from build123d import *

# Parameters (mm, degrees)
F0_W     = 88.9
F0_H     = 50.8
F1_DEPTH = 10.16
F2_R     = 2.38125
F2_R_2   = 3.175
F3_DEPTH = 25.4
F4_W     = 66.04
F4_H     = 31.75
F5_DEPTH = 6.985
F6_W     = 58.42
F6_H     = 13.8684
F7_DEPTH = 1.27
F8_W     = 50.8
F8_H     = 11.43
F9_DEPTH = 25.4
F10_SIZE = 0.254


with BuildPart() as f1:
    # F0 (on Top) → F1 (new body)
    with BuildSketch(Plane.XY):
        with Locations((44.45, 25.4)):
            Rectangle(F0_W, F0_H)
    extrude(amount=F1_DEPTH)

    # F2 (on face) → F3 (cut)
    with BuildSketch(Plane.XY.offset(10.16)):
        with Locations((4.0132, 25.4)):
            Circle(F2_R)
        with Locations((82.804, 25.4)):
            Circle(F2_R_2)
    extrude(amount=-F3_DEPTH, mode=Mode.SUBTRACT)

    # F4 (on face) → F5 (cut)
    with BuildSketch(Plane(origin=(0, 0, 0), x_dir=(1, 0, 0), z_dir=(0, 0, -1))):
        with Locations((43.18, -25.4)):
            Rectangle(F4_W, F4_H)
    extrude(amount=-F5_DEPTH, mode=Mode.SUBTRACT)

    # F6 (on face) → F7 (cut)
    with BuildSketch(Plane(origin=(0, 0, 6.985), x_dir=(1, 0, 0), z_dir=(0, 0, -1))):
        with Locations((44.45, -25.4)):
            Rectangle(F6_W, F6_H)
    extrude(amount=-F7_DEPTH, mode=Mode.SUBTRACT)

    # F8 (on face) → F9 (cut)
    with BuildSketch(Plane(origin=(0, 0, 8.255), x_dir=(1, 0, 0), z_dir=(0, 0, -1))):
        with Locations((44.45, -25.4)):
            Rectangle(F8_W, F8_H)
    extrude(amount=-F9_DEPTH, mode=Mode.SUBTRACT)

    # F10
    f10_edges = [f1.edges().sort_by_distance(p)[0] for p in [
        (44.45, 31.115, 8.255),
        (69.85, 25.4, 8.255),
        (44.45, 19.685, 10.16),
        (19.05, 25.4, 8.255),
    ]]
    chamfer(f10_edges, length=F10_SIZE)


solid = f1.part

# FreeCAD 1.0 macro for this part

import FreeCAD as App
import Part
import Sketcher
Q = App.Units.Quantity


def edges_at(feature, points):
    """Names of the edges that pass closest to the given points."""
    edges = feature.Shape.Edges
    near = lambda p: min(range(len(edges)), key=lambda i: edges[i].distToShape(Part.Vertex(*p))[0])
    return sorted({f"Edge{near(p) + 1}" for p in points})

doc = App.newDocument("Part")
body = doc.addObject("PartDesign::Body", "Body")

sketch1 = body.newObject("Sketcher::SketchObject", "Sketch")
sketch1.AttachmentSupport = (doc.getObject("XY_Plane"), [""])
sketch1.MapMode = "FlatFace"
sketch1.addGeometry([
    Part.LineSegment(App.Vector(0, 51, 0), App.Vector(0, 0, 0)),
    Part.LineSegment(App.Vector(0, 0, 0), App.Vector(89, 0, 0)),
    Part.LineSegment(App.Vector(89, 0, 0), App.Vector(89, 51, 0)),
    Part.LineSegment(App.Vector(89, 51, 0), App.Vector(0, 51, 0)),
], False)
sketch1.addConstraint([
    Sketcher.Constraint("Coincident", 0, 2, 1, 1),
    Sketcher.Constraint("Coincident", 1, 2, 2, 1),
    Sketcher.Constraint("Coincident", 2, 2, 3, 1),
    Sketcher.Constraint("Coincident", 3, 2, 0, 1),
    Sketcher.Constraint("Vertical", 0),
    Sketcher.Constraint("Horizontal", 1),
    Sketcher.Constraint("Vertical", 2),
    Sketcher.Constraint("Horizontal", 3),
    Sketcher.Constraint("Coincident", 0, 2, -1, 1),
    Sketcher.Constraint("DistanceY", 0, 2, 0, 1, Q("2 in")),
    Sketcher.Constraint("DistanceX", 1, 1, 1, 2, Q("3.5 in")),
])
pad1 = body.newObject("PartDesign::Pad", "Pad")
pad1.Profile = sketch1
pad1.Length = Q("0.4 in")

sketch2 = body.newObject("Sketcher::SketchObject", "Sketch001")
sketch2.AttachmentSupport = (doc.getObject("XY_Plane"), [""])
sketch2.MapMode = "FlatFace"
sketch2.AttachmentOffset = App.Placement(App.Vector(0, 0, 0.4 * 25.4), App.Rotation())
sketch2.addGeometry([
    Part.Circle(App.Vector(4, 25.4, 0), App.Vector(0, 0, 1), 2.4),
    Part.Circle(App.Vector(82.8, 25.4, 0), App.Vector(0, 0, 1), 3.2),
], False)
sketch2.addConstraint([
    Sketcher.Constraint("Horizontal", 0, 3, 1, 3),
    Sketcher.Constraint("Diameter", 1, Q("0.25 in")),
    Sketcher.Constraint("Diameter", 0, Q("0.1875 in")),
    Sketcher.Constraint("DistanceY", -1, 1, 0, 3, Q("1 in")),
    Sketcher.Constraint("DistanceX", -1, 1, 1, 3, Q("3.26 in")),
    Sketcher.Constraint("DistanceX", -1, 1, 0, 3, Q("0.158 in")),
])
pocket1 = body.newObject("PartDesign::Pocket", "Pocket")
pocket1.Profile = sketch2
pocket1.Length = Q("1 in")

sketch3 = body.newObject("Sketcher::SketchObject", "Sketch002")
sketch3.AttachmentSupport = (doc.getObject("XY_Plane"), [""])
sketch3.MapMode = "FlatFace"
sketch3.addGeometry([
    Part.LineSegment(App.Vector(10, 10, 0), App.Vector(10, 41, 0)),
    Part.LineSegment(App.Vector(10, 41, 0), App.Vector(76, 41, 0)),
    Part.LineSegment(App.Vector(76, 41, 0), App.Vector(76, 10, 0)),
    Part.LineSegment(App.Vector(76, 10, 0), App.Vector(10, 10, 0)),
], False)
sketch3.addConstraint([
    Sketcher.Constraint("Coincident", 0, 2, 1, 1),
    Sketcher.Constraint("Coincident", 1, 2, 2, 1),
    Sketcher.Constraint("Coincident", 2, 2, 3, 1),
    Sketcher.Constraint("Coincident", 3, 2, 0, 1),
    Sketcher.Constraint("Vertical", 0),
    Sketcher.Constraint("Horizontal", 1),
    Sketcher.Constraint("Vertical", 2),
    Sketcher.Constraint("Horizontal", 3),
    Sketcher.Constraint("DistanceX", 1, 1, 1, 2, Q("2.6 in")),
    Sketcher.Constraint("DistanceX", -1, 1, 1, 2, Q("3 in")),
    Sketcher.Constraint("DistanceY", 0, 1, 0, 2, Q("1.25 in")),
    Sketcher.Constraint("DistanceY", -1, 1, 0, 2, Q("1.625 in")),
])
pocket2 = body.newObject("PartDesign::Pocket", "Pocket001")
pocket2.Profile = sketch3
pocket2.Length = Q("0.275 in")
pocket2.Reversed = True

sketch4 = body.newObject("Sketcher::SketchObject", "Sketch003")
sketch4.AttachmentSupport = (doc.getObject("XY_Plane"), [""])
sketch4.MapMode = "FlatFace"
sketch4.AttachmentOffset = App.Placement(App.Vector(0, 0, 0.275 * 25.4), App.Rotation())
sketch4.addGeometry([
    Part.LineSegment(App.Vector(15, 18, 0), App.Vector(15, 32, 0)),
    Part.LineSegment(App.Vector(15, 32, 0), App.Vector(74, 32, 0)),
    Part.LineSegment(App.Vector(74, 32, 0), App.Vector(74, 18, 0)),
    Part.LineSegment(App.Vector(74, 18, 0), App.Vector(15, 18, 0)),
], False)
sketch4.addConstraint([
    Sketcher.Constraint("Coincident", 0, 2, 1, 1),
    Sketcher.Constraint("Coincident", 1, 2, 2, 1),
    Sketcher.Constraint("Coincident", 2, 2, 3, 1),
    Sketcher.Constraint("Coincident", 3, 2, 0, 1),
    Sketcher.Constraint("Vertical", 0),
    Sketcher.Constraint("Horizontal", 1),
    Sketcher.Constraint("Vertical", 2),
    Sketcher.Constraint("Horizontal", 3),
    Sketcher.Constraint("DistanceX", 1, 1, 1, 2, Q("2.3 in")),
    Sketcher.Constraint("DistanceX", -1, 1, 0, 2, Q("0.6 in")),
    Sketcher.Constraint("DistanceY", 0, 1, 0, 2, Q("0.546 in")),
    Sketcher.Constraint("DistanceY", -1, 1, 0, 2, Q("1.273 in")),
])
pocket3 = body.newObject("PartDesign::Pocket", "Pocket002")
pocket3.Profile = sketch4
pocket3.Length = Q("0.05 in")
pocket3.Reversed = True

sketch5 = body.newObject("Sketcher::SketchObject", "Sketch004")
sketch5.AttachmentSupport = (doc.getObject("XY_Plane"), [""])
sketch5.MapMode = "FlatFace"
sketch5.AttachmentOffset = App.Placement(App.Vector(0, 0, 0.325 * 25.4), App.Rotation())
sketch5.addGeometry([
    Part.LineSegment(App.Vector(19, 20, 0), App.Vector(19, 31, 0)),
    Part.LineSegment(App.Vector(19, 31, 0), App.Vector(70, 31, 0)),
    Part.LineSegment(App.Vector(70, 31, 0), App.Vector(70, 20, 0)),
    Part.LineSegment(App.Vector(70, 20, 0), App.Vector(19, 20, 0)),
], False)
sketch5.addConstraint([
    Sketcher.Constraint("Coincident", 0, 2, 1, 1),
    Sketcher.Constraint("Coincident", 1, 2, 2, 1),
    Sketcher.Constraint("Coincident", 2, 2, 3, 1),
    Sketcher.Constraint("Coincident", 3, 2, 0, 1),
    Sketcher.Constraint("Vertical", 0),
    Sketcher.Constraint("Horizontal", 1),
    Sketcher.Constraint("Vertical", 2),
    Sketcher.Constraint("Horizontal", 3),
    Sketcher.Constraint("DistanceX", 1, 1, 1, 2, Q("2 in")),
    Sketcher.Constraint("DistanceY", 0, 1, 0, 2, Q("0.45 in")),
    Sketcher.Constraint("DistanceX", -1, 1, 0, 2, Q("0.75 in")),
    Sketcher.Constraint("DistanceY", -1, 1, 0, 2, Q("1.225 in")),
])
pocket4 = body.newObject("PartDesign::Pocket", "Pocket003")
pocket4.Profile = sketch5
pocket4.Length = Q("1 in")
pocket4.Reversed = True
doc.recompute()

chamfer = body.newObject("PartDesign::Chamfer", "Chamfer")
chamfer.Base = (pocket4, edges_at(pocket4, [
    (44.45, 31.115, 8.255),
    (69.85, 25.4, 8.255),
    (44.45, 19.685, 10.16),
    (19.05, 25.4, 8.255),
]))
chamfer.Size = Q("0.01 in")

doc.recompute()
